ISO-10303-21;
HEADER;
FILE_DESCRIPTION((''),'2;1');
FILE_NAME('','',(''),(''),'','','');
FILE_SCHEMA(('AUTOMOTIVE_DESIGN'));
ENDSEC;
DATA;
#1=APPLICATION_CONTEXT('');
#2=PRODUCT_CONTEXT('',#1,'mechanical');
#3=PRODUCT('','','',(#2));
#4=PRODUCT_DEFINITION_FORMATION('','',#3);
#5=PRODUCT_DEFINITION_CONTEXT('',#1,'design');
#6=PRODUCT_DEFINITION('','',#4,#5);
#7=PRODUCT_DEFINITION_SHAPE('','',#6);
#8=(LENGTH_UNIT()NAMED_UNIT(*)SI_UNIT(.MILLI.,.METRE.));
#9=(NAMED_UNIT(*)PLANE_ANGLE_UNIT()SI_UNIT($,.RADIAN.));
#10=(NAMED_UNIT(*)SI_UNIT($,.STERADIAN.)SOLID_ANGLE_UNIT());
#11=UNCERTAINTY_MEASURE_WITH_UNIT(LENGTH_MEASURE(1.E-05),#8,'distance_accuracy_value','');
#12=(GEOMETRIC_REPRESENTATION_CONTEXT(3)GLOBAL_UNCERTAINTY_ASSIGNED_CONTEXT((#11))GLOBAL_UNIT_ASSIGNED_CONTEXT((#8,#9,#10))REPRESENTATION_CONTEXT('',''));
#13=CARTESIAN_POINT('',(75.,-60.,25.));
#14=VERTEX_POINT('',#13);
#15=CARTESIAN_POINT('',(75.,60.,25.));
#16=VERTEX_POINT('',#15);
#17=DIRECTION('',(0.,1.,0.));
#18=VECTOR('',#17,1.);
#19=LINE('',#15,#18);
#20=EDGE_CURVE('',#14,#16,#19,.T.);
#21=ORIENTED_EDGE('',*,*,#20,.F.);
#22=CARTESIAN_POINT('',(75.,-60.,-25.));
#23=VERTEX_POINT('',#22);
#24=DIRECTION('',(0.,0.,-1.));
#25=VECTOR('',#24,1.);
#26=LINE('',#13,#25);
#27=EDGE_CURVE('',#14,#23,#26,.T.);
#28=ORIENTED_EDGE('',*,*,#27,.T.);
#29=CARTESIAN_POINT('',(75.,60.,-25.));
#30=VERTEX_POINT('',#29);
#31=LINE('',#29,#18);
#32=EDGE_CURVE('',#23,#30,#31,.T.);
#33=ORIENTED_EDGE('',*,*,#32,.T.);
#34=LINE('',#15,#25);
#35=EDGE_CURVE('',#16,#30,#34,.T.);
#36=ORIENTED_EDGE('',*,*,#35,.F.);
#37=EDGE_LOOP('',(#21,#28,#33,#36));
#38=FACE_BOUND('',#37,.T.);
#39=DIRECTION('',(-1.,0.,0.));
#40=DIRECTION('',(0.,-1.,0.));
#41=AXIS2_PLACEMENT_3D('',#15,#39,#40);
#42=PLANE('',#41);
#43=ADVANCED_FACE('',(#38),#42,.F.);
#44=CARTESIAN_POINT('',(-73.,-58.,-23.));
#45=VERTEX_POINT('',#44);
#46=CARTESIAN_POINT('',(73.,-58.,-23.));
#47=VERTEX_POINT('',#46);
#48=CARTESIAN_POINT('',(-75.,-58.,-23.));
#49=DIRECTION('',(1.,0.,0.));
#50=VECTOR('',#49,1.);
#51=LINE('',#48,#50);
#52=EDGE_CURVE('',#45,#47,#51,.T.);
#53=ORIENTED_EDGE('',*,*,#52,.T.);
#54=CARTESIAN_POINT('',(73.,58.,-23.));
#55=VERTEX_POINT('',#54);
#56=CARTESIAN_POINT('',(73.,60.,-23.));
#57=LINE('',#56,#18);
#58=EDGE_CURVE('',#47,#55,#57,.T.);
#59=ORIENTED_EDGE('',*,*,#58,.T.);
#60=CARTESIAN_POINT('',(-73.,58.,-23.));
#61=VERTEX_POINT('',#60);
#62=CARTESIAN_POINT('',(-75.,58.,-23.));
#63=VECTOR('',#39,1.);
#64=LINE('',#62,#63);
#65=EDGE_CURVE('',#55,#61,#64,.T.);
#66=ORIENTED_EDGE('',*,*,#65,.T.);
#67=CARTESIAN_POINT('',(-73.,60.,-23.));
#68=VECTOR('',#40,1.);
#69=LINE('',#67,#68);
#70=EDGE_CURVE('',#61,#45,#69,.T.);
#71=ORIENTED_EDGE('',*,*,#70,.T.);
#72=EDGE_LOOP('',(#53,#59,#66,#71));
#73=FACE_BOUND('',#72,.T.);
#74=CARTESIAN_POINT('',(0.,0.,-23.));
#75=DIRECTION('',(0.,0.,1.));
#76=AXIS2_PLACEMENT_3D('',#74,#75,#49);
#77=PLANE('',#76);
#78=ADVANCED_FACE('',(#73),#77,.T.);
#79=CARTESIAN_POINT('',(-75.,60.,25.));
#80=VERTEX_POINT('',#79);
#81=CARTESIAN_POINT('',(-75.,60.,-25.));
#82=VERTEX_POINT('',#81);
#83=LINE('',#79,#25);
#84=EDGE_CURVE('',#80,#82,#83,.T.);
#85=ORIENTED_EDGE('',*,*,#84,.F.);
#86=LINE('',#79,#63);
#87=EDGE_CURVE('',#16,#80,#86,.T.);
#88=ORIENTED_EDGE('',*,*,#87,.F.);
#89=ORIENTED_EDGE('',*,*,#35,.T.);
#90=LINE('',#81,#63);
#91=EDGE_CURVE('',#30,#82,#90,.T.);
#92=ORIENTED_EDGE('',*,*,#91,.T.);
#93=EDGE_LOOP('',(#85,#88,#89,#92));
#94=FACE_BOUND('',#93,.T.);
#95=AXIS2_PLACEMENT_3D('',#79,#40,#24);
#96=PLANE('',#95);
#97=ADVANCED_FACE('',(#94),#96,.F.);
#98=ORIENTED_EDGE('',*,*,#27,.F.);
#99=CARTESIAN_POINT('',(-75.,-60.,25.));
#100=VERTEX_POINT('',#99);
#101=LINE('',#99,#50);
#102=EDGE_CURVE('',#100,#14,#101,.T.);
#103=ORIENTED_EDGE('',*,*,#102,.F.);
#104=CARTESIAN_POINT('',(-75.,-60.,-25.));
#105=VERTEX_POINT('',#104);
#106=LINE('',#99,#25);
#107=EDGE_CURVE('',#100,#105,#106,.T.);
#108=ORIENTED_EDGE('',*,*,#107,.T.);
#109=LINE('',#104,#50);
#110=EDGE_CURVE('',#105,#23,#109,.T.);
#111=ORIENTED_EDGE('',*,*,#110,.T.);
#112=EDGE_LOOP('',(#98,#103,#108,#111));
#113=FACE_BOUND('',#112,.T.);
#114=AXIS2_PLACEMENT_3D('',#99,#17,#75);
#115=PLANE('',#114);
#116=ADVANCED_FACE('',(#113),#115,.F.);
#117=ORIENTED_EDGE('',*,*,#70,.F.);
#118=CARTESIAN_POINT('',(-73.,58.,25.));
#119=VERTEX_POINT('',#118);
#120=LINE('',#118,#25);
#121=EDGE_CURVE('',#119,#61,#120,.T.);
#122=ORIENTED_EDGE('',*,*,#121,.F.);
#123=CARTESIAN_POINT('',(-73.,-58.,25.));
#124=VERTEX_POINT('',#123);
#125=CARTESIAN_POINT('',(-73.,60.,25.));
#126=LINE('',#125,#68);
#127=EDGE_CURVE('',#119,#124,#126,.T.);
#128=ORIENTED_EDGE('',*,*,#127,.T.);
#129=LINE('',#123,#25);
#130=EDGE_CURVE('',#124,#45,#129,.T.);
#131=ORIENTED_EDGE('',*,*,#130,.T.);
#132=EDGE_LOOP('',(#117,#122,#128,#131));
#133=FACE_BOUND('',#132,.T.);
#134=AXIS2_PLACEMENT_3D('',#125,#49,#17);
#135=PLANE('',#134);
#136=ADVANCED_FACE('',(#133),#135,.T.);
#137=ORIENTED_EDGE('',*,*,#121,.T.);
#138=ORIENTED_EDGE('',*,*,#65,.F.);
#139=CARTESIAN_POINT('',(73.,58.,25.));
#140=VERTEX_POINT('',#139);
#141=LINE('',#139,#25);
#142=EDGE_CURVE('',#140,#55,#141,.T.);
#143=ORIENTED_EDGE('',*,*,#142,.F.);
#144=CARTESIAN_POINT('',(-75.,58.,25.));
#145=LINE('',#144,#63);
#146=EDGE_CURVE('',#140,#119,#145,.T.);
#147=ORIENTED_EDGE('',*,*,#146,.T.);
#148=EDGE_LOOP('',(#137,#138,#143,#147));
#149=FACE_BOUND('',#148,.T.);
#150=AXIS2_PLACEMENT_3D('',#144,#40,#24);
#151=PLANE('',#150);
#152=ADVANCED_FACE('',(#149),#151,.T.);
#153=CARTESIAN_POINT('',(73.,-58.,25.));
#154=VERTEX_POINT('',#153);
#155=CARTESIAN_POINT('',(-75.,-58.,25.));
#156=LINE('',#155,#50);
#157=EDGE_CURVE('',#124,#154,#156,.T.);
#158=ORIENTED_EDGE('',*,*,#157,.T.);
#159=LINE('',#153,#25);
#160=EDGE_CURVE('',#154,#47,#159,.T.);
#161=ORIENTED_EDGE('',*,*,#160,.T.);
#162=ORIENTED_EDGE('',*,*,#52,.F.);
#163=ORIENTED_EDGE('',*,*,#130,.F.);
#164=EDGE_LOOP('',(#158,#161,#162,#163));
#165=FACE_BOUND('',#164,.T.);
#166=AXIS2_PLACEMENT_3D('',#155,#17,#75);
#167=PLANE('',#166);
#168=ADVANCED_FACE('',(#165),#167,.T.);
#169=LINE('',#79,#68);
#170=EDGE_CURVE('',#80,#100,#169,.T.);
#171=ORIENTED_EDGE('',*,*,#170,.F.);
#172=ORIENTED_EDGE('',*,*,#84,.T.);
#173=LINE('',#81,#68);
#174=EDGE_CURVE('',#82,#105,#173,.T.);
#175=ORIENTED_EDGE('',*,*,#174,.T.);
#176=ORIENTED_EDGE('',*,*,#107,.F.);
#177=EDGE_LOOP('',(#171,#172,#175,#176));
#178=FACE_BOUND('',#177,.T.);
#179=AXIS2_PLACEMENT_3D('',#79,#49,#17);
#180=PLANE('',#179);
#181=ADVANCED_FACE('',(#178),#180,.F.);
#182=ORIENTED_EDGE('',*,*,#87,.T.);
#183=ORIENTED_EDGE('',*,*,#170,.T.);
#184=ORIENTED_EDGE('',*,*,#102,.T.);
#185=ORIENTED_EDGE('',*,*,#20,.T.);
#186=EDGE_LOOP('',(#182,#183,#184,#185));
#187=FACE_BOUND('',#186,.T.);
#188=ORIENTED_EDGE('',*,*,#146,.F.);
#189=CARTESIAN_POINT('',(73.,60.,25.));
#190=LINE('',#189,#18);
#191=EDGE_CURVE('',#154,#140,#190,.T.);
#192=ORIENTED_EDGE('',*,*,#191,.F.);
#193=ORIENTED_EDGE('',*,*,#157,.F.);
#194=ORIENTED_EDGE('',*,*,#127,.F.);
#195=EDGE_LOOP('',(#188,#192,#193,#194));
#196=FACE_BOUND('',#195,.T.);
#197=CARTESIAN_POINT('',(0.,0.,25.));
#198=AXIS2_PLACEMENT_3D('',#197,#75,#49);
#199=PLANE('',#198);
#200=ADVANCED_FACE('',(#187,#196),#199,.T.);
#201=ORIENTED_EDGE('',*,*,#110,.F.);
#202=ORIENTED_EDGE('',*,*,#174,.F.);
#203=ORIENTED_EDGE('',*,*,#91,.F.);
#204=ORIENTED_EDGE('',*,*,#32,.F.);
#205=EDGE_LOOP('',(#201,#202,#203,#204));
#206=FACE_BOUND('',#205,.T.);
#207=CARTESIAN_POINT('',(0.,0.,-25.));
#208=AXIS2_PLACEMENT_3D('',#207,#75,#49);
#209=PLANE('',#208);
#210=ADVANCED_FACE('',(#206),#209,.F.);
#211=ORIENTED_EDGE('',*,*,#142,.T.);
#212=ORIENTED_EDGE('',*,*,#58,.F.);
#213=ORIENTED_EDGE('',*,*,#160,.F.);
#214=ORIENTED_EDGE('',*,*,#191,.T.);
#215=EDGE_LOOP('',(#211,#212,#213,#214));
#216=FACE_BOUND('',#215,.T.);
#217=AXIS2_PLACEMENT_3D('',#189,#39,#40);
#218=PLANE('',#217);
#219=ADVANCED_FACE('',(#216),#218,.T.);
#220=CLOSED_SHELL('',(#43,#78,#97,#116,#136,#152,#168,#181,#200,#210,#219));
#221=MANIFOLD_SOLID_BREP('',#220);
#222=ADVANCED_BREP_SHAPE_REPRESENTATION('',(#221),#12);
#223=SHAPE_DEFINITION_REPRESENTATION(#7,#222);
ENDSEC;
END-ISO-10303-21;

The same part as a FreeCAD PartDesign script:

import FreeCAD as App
import Part
import Sketcher

V = App.Vector
Q = App.Units.Quantity


def faces_at(feature, points):
    """Names of the faces that lie closest to the given points."""
    faces = feature.Shape.Faces
    near = lambda p: min(range(len(faces)), key=lambda i: faces[i].distToShape(Part.Vertex(*p))[0])
    return sorted({f"Face{near(p) + 1}" for p in points})

doc = App.newDocument("Part")
body = doc.addObject("PartDesign::Body", "Body")

sketch1 = doc.addObject("Sketcher::SketchObject", "Sketch")
body.addObject(sketch1)
sketch1.AttachmentSupport = (doc.XY_Plane, [""])
sketch1.MapMode = "FlatFace"
sketch1.addGeometry([
    Part.LineSegment(V(-75, 60, 0), V(-75, -60, 0)),
    Part.LineSegment(V(-75, -60, 0), V(75, -60, 0)),
    Part.LineSegment(V(75, -60, 0), V(75, 60, 0)),
    Part.LineSegment(V(75, 60, 0), V(-75, 60, 0)),
], False)
sketch1.addConstraint([
    Sketcher.Constraint("Coincident", 0, 2, 1, 1),
    Sketcher.Constraint("Coincident", 1, 2, 2, 1),
    Sketcher.Constraint("Coincident", 2, 2, 3, 1),
    Sketcher.Constraint("Coincident", 3, 2, 0, 1),
    Sketcher.Constraint("Vertical", 0),
    Sketcher.Constraint("Horizontal", 1),
    Sketcher.Constraint("Vertical", 2),
    Sketcher.Constraint("Horizontal", 3),
    Sketcher.Constraint("Symmetric", 0, 2, 2, 2, -1, 1),
    Sketcher.Constraint("DistanceX", 1, 1, 1, 2, Q("150 mm")),
    Sketcher.Constraint("DistanceY", 0, 2, 0, 1, Q("120 mm")),
])
pad1 = doc.addObject("PartDesign::Pad", "Pad")
body.addObject(pad1)
pad1.Profile = sketch1
pad1.Length = 50
pad1.Midplane = True
doc.recompute()

thickness = doc.addObject("PartDesign::Thickness", "Thickness")
body.addObject(thickness)
thickness.Base = (pad1, faces_at(pad1, [(0, 0, 25)]))
thickness.Value = 2
thickness.Reversed = True
thickness.Join = "Intersection"

doc.recompute()
